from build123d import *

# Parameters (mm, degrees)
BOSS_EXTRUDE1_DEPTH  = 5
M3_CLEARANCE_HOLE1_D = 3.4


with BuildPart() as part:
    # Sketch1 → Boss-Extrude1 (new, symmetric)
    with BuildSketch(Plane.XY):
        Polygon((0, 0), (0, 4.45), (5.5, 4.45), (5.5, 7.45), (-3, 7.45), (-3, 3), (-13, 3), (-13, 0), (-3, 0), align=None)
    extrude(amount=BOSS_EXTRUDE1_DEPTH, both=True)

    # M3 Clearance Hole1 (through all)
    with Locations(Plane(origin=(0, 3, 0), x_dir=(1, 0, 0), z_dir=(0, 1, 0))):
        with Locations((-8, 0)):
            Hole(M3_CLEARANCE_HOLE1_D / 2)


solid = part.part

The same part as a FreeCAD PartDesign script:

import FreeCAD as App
import Part
import Sketcher
from FreeCAD import Vector
Q = App.Units.Quantity


def add_polygon(sketch, points):
    """Adds a closed chain of lines whose ends are joined by coincident constraints."""
    first, n = sketch.GeometryCount, len(points)
    for a, b in zip(points, points[1:] + points[:1]):
        sketch.addGeometry(Part.LineSegment(App.Vector(*a, 0), App.Vector(*b, 0)), False)
    for i in range(n):
        sketch.addConstraint(Sketcher.Constraint("Coincident", first + i, 2, first + (i + 1) % n, 1))

doc = App.newDocument("Part")
params = doc.addObject("Spreadsheet::Sheet", "Params")
for row, (alias, value) in enumerate([
    ("sketch1_width", "10 mm"),
    ("sketch1_width2", "13 mm"),
    ("sketch1_height", "3 mm"),
    ("sketch1_width3", "5.5 mm"),
    ("sketch1_height2", "4.45 mm"),
    ("pad1_length", "10 mm"),
    ("sketch2_diameter", "3.4 mm"),
    ("hole_diameter", "3.4 mm"),
], start=1):
    params.set(f"A{row}", alias)
    params.set(f"B{row}", "=" + value)
    params.setAlias(f"B{row}", alias)

body = doc.addObject("PartDesign::Body", "Body")

sketch1 = doc.addObject("Sketcher::SketchObject", "Sketch")
body.addObject(sketch1)
sketch1.AttachmentSupport = (doc.XY_Plane, [""])
sketch1.MapMode = "FlatFace"
add_polygon(sketch1, [(0, 0), (0, 4.5), (5.5, 4.5), (5.5, 7.5), (-3, 7.5), (-3, 3), (-13, 3), (-13, 0)])
sketch1.addConstraint([
    Sketcher.Constraint("Vertical", 0),
    Sketcher.Constraint("Horizontal", 1),
    Sketcher.Constraint("Vertical", 2),
    Sketcher.Constraint("Horizontal", 3),
    Sketcher.Constraint("Vertical", 4),
    Sketcher.Constraint("Horizontal", 5),
    Sketcher.Constraint("Vertical", 6),
    Sketcher.Constraint("Horizontal", 7),
    Sketcher.Constraint("Coincident", 7, 2, -1, 1),
    Sketcher.Constraint("Equal", 0, 4),
    Sketcher.Constraint("DistanceX", 5, 2, 5, 1, Q("10 mm")),
    Sketcher.Constraint("DistanceX", 7, 1, 7, 2, Q("13 mm")),
    Sketcher.Constraint("DistanceY", 2, 1, 2, 2, Q("3 mm")),
    Sketcher.Constraint("DistanceX", 1, 1, 1, 2, Q("5.5 mm")),
    Sketcher.Constraint("DistanceY", 0, 1, 0, 2, Q("4.45 mm")),
])
sketch1.setExpression("Constraints[18]", "Params.sketch1_width")
sketch1.setExpression("Constraints[19]", "Params.sketch1_width2")
sketch1.setExpression("Constraints[20]", "Params.sketch1_height")
sketch1.setExpression("Constraints[21]", "Params.sketch1_width3")
sketch1.setExpression("Constraints[22]", "Params.sketch1_height2")
pad1 = doc.addObject("PartDesign::Pad", "Pad")
body.addObject(pad1)
pad1.Profile = sketch1
pad1.setExpression("Length", "Params.pad1_length")
pad1.Midplane = True

sketch2 = doc.addObject("Sketcher::SketchObject", "Sketch001")
body.addObject(sketch2)
sketch2.AttachmentSupport = (doc.XZ_Plane, [""])
sketch2.MapMode = "FlatFace"
sketch2.AttachmentOffset = App.Placement(Vector(0, 0, -3), App.Rotation())
sketch2.addGeometry(Part.Circle(Vector(-8, 0, 0), Vector(0, 0, 1), 1.7), False)
sketch2.addConstraint([
    Sketcher.Constraint("PointOnObject", 0, 3, -1),
    Sketcher.Constraint("Diameter", 0, Q("3.4 mm")),
    Sketcher.Constraint("DistanceX", 0, 3, -1, 1, Q("8 mm")),
])
sketch2.setExpression("Constraints[1]", "Params.sketch2_diameter")
doc.recompute()
hole = doc.addObject("PartDesign::Hole", "Hole")
body.addObject(hole)
hole.Profile = sketch2
hole.ThreadType = "None"
hole.setExpression("Diameter", "Params.hole_diameter")
hole.DepthType = "ThroughAll"
hole.Reversed = True

doc.recompute()
